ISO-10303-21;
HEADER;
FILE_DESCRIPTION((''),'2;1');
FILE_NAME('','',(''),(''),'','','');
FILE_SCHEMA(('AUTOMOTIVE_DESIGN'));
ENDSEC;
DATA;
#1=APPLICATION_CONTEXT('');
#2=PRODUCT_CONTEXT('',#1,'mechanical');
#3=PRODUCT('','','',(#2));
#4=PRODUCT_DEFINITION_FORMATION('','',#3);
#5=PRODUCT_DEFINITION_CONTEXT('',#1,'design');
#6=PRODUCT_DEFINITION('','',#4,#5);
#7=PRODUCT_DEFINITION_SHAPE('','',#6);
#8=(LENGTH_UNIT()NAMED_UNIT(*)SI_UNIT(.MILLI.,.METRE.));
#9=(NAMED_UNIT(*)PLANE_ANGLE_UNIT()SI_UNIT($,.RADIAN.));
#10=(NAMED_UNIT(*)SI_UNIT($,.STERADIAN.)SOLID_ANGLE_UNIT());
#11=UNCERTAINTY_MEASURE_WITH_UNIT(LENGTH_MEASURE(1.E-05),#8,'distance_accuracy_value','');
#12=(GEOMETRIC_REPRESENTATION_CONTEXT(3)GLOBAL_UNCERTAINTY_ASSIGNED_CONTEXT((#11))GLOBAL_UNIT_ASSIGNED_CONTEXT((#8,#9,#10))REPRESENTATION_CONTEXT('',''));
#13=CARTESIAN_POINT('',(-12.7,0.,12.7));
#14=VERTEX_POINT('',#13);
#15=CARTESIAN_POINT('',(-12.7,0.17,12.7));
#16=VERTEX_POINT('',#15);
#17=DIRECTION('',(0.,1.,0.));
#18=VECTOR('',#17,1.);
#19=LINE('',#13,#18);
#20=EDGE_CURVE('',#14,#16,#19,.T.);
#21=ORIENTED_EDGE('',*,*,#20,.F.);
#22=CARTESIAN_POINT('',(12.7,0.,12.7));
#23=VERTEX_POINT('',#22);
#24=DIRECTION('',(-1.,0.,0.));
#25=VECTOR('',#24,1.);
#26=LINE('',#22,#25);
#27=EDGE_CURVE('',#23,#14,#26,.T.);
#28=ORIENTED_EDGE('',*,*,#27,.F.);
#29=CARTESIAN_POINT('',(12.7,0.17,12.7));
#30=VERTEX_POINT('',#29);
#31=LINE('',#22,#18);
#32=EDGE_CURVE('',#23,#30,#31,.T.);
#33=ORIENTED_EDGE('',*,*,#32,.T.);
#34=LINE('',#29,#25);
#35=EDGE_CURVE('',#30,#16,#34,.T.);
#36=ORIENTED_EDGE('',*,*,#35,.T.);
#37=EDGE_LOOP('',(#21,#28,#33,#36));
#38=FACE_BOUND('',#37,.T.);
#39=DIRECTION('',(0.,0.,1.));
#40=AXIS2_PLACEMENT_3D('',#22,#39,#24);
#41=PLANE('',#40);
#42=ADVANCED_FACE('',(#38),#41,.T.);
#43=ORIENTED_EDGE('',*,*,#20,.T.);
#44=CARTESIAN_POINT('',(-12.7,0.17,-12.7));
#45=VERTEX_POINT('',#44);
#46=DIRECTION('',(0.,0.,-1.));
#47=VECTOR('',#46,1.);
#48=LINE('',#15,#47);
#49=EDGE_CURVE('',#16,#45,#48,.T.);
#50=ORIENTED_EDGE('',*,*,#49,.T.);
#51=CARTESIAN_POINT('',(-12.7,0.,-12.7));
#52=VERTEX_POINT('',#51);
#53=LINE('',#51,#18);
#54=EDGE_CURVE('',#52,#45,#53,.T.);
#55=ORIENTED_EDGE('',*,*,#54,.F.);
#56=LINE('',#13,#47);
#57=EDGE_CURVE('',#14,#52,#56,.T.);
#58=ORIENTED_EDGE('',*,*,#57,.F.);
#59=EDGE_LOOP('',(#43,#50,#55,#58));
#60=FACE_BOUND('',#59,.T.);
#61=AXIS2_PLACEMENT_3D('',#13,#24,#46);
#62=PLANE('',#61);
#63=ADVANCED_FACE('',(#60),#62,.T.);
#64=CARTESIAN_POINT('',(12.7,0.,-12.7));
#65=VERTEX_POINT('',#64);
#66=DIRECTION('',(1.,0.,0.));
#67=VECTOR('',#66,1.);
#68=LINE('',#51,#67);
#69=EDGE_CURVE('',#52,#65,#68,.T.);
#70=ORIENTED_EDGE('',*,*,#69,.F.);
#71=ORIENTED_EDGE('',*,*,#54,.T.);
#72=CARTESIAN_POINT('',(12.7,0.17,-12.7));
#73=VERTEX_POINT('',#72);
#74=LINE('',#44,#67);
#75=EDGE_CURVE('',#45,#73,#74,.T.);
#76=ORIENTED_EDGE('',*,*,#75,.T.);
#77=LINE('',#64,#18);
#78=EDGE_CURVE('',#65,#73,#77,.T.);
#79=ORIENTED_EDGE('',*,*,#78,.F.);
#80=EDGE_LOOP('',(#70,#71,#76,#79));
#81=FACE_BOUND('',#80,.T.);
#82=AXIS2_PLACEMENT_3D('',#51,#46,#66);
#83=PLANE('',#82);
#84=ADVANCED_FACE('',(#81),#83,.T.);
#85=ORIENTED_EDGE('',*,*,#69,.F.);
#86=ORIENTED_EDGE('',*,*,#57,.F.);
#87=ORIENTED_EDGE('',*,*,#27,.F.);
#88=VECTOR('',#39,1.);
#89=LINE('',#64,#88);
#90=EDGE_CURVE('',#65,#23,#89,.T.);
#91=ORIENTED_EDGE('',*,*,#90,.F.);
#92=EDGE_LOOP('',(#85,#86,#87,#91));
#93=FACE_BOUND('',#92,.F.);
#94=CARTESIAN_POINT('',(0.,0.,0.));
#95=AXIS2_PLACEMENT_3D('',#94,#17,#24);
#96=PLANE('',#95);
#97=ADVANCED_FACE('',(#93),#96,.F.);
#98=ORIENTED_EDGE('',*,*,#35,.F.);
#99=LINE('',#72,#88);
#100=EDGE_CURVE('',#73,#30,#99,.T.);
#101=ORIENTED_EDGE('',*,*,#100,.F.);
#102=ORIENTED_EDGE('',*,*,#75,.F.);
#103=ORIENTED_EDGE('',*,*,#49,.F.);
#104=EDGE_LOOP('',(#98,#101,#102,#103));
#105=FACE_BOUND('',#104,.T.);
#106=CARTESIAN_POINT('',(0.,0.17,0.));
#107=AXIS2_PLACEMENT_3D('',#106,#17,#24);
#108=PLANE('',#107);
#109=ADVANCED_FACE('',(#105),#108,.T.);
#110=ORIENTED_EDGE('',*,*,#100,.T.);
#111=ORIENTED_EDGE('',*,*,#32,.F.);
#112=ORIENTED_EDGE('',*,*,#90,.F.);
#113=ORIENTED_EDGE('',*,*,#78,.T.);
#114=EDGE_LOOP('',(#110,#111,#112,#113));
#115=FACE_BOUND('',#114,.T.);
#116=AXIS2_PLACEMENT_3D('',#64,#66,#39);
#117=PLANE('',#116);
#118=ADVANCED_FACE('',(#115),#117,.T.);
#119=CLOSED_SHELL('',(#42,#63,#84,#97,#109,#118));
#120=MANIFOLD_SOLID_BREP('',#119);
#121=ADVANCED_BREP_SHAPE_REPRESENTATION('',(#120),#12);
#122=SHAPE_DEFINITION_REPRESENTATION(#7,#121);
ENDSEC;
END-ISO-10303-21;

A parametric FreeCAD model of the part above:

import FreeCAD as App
import Part
import Sketcher
from FreeCAD import Vector
Q = App.Units.Quantity


def add_polygon(sketch, points):
    """Adds a closed chain of lines whose ends are joined by coincident constraints."""
    first, n = sketch.GeometryCount, len(points)
    for a, b in zip(points, points[1:] + points[:1]):
        sketch.addGeometry(Part.LineSegment(App.Vector(*a, 0), App.Vector(*b, 0)), False)
    for i in range(n):
        sketch.addConstraint(Sketcher.Constraint("Coincident", first + i, 2, first + (i + 1) % n, 1))

doc = App.newDocument("Part")
params = doc.addObject("Spreadsheet::Sheet", "Params")
for row, (alias, value) in enumerate([
    ("sketch1_width", "1 in"),
    ("pad1_length", "0.0066929 in"),
], start=1):
    params.set(f"A{row}", alias)
    params.set(f"B{row}", "=" + value)
    params.setAlias(f"B{row}", alias)

body = doc.addObject("PartDesign::Body", "Body")

# Sketch on XZ plane
sketch1 = body.newObject("Sketcher::SketchObject", "Sketch")
sketch1.AttachmentSupport = (doc.getObject("XZ_Plane"), [""])
sketch1.MapMode = "FlatFace"
add_polygon(sketch1, [(-13, 13), (13, 13), (13, -13), (-13, -13)])  # lines 0-3
sketch1.addConstraint([
    Sketcher.Constraint("Horizontal", 0),
    Sketcher.Constraint("Vertical", 1),
    Sketcher.Constraint("Horizontal", 2),
    Sketcher.Constraint("Vertical", 3),
    Sketcher.Constraint("Symmetric", 0, 2, 2, 2, -1, 1),
    Sketcher.Constraint("Equal", 2, 1),
    Sketcher.Constraint("DistanceX", 0, 1, 0, 2, Q("1 in")),
])
sketch1.setExpression("Constraints[10]", "Params.sketch1_width")
pad1 = body.newObject("PartDesign::Pad", "Pad")
pad1.Profile = sketch1
pad1.setExpression("Length", "Params.pad1_length")
pad1.Reversed = True

doc.recompute()
